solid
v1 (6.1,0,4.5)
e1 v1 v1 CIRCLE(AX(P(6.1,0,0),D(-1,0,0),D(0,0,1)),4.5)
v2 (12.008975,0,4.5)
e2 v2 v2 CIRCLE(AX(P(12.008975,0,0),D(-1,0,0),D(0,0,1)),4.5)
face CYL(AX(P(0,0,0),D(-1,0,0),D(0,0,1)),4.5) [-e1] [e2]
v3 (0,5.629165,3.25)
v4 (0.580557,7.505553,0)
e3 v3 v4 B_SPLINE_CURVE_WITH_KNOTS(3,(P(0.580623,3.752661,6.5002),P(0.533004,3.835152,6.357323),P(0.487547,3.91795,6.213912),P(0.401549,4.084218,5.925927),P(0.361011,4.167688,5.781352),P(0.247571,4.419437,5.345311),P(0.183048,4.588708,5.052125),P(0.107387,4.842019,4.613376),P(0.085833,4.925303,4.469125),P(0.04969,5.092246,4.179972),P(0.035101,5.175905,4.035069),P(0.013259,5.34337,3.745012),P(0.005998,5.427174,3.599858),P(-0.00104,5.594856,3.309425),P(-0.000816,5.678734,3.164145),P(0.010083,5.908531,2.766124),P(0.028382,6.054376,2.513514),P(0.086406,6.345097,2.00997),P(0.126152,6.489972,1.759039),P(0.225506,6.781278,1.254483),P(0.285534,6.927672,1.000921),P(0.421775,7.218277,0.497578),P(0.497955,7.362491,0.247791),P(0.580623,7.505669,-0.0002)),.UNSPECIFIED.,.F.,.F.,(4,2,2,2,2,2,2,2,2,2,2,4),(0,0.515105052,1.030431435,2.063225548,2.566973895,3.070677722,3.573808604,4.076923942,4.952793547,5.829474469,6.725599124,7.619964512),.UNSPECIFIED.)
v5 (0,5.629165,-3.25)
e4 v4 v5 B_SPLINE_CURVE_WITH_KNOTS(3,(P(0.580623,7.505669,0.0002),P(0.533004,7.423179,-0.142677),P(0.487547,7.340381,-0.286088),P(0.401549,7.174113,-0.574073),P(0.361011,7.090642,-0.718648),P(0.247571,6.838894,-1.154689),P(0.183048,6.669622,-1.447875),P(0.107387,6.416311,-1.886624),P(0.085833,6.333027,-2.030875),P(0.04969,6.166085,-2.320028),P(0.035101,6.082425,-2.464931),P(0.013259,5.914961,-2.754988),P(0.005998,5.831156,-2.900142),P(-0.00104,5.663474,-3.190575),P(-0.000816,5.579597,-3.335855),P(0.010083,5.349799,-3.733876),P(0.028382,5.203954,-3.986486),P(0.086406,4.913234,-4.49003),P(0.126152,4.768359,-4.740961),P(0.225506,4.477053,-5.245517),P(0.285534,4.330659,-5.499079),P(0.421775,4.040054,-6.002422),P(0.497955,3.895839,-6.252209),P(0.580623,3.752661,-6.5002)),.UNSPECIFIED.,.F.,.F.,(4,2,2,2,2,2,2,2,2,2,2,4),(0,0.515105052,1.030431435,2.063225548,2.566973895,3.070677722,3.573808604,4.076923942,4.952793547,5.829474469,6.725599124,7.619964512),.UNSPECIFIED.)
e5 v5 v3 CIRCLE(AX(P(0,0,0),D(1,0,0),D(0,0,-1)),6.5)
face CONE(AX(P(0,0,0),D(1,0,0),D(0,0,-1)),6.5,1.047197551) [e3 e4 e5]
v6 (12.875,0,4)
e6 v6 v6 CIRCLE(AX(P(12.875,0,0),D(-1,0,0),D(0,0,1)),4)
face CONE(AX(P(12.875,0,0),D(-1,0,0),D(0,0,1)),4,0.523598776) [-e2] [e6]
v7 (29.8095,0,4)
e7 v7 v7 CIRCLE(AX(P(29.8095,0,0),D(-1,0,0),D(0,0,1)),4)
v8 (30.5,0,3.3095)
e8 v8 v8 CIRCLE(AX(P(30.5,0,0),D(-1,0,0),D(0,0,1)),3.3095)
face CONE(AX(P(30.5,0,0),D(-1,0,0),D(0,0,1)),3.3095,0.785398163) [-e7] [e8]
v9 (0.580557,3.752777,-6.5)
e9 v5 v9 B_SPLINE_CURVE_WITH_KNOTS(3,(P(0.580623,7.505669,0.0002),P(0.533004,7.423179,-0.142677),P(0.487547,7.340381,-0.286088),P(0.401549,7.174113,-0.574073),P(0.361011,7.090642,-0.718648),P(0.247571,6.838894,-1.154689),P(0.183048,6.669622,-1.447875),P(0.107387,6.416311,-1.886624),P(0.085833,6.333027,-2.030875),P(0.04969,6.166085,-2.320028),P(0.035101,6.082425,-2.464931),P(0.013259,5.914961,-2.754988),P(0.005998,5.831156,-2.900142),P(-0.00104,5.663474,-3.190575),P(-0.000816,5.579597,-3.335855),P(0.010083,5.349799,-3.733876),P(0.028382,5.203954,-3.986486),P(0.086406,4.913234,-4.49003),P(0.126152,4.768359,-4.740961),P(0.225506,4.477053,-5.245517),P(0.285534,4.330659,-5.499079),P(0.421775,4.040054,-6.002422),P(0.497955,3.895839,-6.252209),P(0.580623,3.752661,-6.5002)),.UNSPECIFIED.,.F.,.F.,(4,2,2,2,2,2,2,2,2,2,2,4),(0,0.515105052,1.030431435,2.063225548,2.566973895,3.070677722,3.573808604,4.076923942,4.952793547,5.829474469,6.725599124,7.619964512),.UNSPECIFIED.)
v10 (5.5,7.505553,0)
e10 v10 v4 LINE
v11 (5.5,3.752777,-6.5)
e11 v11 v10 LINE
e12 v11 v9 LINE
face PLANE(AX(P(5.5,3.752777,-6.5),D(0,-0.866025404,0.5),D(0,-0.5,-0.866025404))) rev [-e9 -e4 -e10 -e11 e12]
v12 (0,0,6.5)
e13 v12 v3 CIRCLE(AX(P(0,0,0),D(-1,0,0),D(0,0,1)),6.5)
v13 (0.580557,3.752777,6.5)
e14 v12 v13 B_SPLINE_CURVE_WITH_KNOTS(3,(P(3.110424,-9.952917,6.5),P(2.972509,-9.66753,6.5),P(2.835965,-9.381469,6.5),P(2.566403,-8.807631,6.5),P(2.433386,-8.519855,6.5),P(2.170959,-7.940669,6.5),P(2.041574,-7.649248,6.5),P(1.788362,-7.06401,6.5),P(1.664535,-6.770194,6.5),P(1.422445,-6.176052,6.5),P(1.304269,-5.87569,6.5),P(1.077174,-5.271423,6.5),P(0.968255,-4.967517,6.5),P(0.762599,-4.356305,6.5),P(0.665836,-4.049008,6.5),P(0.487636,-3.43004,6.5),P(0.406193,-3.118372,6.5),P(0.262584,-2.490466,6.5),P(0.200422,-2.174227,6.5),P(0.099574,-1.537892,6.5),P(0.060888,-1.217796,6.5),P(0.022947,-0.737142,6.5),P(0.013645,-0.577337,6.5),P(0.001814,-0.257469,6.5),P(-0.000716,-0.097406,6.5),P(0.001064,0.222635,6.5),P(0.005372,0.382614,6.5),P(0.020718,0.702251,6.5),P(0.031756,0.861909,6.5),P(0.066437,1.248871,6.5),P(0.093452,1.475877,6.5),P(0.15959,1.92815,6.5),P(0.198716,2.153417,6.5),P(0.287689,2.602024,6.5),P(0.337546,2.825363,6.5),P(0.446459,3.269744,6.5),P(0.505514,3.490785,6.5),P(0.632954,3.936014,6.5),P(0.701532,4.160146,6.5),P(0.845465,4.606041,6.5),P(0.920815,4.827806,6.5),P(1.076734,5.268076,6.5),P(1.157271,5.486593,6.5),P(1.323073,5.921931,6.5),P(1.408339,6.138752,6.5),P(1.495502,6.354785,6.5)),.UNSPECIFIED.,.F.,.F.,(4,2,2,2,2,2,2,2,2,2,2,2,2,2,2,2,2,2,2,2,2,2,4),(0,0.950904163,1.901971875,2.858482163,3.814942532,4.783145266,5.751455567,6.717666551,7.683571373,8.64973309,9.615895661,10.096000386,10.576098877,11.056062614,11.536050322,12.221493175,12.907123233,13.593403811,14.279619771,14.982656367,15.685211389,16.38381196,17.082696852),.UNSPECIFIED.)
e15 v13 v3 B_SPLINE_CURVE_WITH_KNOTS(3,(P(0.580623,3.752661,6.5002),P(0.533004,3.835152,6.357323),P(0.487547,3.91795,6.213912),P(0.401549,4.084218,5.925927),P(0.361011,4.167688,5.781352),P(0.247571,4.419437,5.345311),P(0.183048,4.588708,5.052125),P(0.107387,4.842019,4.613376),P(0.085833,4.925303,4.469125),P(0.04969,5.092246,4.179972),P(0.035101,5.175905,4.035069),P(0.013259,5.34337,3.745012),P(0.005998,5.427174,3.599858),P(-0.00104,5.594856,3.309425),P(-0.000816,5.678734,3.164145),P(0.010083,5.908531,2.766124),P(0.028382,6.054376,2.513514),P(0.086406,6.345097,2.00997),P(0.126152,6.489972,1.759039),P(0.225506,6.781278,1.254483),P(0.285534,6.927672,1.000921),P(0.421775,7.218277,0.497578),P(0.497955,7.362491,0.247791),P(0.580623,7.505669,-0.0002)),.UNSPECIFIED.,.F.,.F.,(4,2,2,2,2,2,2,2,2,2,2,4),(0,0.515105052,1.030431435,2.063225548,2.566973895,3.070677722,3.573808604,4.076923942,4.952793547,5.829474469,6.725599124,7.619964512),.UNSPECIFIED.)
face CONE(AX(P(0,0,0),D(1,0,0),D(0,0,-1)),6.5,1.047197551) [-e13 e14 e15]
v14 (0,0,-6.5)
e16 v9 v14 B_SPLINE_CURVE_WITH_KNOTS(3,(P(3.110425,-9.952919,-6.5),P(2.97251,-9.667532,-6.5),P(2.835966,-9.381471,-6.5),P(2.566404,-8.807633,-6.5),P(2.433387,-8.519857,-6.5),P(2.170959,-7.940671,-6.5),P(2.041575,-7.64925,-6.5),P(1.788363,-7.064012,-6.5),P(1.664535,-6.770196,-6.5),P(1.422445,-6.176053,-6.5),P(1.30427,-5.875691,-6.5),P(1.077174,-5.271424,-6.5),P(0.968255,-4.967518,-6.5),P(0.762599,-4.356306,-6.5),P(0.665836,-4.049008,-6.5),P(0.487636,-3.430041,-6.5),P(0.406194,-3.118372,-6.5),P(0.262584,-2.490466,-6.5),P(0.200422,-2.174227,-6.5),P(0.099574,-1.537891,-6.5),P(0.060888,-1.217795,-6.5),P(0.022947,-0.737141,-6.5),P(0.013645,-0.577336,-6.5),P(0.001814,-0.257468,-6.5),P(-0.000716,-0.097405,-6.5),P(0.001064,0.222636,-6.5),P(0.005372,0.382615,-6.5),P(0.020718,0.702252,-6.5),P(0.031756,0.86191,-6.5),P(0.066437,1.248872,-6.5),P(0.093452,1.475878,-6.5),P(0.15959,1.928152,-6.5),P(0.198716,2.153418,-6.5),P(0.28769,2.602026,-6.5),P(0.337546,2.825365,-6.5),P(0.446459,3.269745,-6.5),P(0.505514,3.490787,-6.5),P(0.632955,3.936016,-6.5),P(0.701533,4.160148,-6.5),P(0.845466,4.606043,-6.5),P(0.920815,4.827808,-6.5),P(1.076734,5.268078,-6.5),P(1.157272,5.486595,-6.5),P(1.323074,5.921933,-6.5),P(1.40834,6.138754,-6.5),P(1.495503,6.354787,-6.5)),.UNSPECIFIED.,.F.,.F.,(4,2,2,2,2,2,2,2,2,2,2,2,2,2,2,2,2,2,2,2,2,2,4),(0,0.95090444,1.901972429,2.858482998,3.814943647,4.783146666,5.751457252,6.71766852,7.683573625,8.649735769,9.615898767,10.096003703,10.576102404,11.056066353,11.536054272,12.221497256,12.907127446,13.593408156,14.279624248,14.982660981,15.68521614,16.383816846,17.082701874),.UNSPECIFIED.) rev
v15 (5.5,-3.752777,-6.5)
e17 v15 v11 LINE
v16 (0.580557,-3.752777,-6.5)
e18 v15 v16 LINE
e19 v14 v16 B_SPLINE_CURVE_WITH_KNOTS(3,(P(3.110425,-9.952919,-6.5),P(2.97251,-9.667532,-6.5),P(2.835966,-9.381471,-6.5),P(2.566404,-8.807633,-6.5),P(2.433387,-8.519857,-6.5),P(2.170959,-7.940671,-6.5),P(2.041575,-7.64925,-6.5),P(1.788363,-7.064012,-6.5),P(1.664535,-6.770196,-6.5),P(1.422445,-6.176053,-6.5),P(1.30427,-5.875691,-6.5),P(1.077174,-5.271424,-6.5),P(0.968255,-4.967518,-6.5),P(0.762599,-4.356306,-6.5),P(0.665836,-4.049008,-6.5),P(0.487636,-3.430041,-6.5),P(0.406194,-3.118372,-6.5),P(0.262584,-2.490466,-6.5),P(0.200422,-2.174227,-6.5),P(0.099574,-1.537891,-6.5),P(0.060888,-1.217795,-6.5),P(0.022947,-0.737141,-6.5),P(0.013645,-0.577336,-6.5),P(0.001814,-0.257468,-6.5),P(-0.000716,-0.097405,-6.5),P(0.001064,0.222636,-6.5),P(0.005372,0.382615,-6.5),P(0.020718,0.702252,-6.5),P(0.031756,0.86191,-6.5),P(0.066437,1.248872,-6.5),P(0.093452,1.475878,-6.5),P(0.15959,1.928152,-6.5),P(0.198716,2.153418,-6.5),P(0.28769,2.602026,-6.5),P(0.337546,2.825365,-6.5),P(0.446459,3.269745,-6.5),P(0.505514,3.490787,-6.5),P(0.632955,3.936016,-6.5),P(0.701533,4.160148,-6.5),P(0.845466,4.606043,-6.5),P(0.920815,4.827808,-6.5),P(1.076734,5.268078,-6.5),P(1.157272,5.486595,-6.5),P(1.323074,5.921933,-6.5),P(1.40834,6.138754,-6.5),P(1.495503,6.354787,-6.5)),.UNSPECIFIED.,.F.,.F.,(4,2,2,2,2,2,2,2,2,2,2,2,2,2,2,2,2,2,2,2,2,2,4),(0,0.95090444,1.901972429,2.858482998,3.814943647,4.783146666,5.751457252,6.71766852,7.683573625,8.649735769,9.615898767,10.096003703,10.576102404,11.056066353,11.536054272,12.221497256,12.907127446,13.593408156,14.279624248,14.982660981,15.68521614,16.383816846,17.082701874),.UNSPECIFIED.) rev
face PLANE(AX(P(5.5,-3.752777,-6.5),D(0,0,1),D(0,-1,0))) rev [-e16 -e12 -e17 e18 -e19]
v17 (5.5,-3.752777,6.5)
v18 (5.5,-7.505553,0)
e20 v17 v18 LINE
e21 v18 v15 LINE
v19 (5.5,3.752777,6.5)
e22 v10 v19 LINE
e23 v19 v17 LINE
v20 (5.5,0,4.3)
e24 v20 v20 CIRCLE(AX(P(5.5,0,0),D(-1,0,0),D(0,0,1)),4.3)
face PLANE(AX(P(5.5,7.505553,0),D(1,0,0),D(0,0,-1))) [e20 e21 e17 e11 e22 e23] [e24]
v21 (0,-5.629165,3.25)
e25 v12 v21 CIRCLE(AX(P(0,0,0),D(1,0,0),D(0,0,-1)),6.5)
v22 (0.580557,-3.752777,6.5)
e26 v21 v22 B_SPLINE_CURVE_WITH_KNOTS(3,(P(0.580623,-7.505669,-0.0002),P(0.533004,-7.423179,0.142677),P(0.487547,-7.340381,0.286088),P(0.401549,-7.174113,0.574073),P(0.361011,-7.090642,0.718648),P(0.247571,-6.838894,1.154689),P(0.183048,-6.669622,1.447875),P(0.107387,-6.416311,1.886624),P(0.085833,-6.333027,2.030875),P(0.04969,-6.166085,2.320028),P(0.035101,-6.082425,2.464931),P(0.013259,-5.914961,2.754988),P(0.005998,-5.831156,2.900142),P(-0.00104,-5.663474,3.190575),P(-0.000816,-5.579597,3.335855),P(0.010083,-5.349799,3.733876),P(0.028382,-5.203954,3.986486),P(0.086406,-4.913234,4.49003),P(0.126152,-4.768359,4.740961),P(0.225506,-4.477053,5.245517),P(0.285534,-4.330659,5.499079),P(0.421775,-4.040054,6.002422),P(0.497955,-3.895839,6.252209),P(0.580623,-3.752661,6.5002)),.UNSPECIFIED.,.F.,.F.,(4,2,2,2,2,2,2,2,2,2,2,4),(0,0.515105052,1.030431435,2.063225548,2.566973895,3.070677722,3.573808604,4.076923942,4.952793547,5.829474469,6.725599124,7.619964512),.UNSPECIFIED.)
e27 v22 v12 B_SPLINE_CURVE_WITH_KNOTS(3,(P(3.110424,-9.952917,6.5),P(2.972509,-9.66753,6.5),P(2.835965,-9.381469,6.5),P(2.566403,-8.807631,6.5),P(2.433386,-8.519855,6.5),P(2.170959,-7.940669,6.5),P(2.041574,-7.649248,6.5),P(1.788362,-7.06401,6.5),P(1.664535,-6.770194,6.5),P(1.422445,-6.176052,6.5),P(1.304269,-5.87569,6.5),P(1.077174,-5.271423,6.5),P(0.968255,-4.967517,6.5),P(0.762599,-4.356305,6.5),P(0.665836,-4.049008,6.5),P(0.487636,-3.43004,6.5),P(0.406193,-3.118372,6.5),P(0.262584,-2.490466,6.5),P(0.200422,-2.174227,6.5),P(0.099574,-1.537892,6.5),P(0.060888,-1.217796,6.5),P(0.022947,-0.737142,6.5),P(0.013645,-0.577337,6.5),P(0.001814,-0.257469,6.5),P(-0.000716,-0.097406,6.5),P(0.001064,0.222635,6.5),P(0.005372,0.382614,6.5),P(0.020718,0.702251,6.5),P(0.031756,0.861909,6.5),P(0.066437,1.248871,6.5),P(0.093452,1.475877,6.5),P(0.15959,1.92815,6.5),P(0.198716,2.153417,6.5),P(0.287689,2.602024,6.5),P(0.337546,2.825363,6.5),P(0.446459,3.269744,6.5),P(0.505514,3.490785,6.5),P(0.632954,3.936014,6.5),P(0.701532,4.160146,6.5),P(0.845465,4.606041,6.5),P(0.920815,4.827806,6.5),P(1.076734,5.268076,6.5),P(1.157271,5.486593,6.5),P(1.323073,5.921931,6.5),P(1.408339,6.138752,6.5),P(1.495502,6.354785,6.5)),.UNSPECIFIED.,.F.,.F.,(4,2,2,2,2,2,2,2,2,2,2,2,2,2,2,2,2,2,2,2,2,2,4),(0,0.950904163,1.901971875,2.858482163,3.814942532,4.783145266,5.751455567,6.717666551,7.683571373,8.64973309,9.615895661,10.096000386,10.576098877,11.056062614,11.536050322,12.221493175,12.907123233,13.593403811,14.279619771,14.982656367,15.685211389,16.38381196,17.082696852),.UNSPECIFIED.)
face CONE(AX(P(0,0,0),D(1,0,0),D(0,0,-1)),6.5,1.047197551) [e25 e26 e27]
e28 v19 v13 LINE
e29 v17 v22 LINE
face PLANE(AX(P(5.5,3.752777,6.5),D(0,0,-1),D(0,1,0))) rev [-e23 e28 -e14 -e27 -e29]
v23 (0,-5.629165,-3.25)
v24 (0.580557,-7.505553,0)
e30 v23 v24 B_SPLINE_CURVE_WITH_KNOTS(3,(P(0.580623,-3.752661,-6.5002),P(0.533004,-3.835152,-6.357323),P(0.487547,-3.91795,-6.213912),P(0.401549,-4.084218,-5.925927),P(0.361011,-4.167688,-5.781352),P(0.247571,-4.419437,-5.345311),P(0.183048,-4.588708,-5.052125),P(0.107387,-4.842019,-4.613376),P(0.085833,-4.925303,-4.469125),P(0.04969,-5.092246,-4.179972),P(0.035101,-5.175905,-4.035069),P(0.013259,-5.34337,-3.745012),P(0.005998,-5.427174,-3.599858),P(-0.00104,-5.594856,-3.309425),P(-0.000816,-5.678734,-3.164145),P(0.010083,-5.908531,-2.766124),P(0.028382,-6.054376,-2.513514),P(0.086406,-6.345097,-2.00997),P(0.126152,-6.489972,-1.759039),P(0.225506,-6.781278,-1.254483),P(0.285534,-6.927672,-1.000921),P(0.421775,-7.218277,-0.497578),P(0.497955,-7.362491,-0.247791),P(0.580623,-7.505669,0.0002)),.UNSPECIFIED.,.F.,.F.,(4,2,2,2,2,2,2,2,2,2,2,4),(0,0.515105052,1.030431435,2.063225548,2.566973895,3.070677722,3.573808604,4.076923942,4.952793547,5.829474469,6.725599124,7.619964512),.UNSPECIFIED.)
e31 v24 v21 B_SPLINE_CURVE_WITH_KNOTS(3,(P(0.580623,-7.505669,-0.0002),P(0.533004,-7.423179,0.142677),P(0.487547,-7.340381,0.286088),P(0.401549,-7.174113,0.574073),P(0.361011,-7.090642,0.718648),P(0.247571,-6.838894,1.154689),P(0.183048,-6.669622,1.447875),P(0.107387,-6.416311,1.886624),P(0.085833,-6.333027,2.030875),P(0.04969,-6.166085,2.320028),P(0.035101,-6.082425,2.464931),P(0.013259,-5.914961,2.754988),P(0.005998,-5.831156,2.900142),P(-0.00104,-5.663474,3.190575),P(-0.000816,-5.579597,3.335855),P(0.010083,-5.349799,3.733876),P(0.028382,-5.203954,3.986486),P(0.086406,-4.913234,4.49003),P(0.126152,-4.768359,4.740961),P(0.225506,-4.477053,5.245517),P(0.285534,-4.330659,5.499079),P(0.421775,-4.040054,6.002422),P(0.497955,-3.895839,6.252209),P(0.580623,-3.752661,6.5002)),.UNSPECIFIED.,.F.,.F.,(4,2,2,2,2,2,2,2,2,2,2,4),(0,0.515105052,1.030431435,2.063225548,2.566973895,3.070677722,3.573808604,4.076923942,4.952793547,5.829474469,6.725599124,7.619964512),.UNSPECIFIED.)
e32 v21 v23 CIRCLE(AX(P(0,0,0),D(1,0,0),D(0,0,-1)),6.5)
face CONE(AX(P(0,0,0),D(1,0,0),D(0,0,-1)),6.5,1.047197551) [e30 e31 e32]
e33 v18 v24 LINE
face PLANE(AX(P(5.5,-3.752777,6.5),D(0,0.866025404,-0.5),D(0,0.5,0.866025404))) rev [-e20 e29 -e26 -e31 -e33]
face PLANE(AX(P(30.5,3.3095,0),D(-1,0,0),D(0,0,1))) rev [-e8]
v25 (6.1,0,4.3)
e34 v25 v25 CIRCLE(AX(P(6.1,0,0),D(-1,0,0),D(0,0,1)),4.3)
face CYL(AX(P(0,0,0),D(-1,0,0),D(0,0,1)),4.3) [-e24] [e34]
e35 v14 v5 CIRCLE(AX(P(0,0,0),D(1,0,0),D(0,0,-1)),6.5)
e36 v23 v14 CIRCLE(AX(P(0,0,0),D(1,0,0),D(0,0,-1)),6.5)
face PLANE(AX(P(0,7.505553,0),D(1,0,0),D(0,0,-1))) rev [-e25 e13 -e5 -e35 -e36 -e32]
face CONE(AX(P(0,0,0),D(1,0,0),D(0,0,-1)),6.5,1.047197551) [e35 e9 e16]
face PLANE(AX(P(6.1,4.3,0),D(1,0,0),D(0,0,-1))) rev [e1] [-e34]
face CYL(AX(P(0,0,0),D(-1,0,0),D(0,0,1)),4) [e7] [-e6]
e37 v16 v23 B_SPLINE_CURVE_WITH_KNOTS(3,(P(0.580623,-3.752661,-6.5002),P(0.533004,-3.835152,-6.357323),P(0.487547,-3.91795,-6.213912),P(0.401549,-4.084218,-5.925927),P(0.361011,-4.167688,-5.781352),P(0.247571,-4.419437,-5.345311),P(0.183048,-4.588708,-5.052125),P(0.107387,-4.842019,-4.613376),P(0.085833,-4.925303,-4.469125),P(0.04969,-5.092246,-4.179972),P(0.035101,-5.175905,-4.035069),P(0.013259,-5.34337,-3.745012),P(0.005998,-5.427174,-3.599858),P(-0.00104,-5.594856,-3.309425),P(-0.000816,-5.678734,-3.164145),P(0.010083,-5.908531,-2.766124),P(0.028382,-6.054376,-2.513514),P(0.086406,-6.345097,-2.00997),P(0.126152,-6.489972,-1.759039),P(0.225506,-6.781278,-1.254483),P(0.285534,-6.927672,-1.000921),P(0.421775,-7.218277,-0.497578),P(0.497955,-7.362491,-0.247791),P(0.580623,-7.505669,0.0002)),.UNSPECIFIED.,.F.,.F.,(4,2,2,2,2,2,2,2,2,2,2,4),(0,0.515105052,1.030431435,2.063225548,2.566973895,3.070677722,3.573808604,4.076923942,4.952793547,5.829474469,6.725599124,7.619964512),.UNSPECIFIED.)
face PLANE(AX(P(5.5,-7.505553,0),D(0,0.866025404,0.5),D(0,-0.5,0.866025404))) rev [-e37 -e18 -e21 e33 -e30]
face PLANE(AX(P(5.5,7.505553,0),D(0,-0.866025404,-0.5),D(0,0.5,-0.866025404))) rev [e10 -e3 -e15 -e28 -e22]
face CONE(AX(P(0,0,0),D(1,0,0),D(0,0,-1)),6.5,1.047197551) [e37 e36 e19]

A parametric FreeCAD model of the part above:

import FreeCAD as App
import Part
import Sketcher
from FreeCAD import Vector
Q = App.Units.Quantity


def add_polygon(sketch, points):
    """Adds a closed chain of lines whose ends are joined by coincident constraints."""
    first, n = sketch.GeometryCount, len(points)
    for a, b in zip(points, points[1:] + points[:1]):
        sketch.addGeometry(Part.LineSegment(App.Vector(*a, 0), App.Vector(*b, 0)), False)
    for i in range(n):
        sketch.addConstraint(Sketcher.Constraint("Coincident", first + i, 2, first + (i + 1) % n, 1))

doc = App.newDocument("Part")
body = doc.addObject("PartDesign::Body", "Body")

# Sketch on YZ plane
sketch1 = body.newObject("Sketcher::SketchObject", "Sketch")
sketch1.AttachmentSupport = (doc.getObject("YZ_Plane"), [""])
sketch1.MapMode = "FlatFace"
add_polygon(sketch1, [(8, 0), (4, 6), (-4, 6), (-8, 0), (-4, -6), (4, -6)])  # lines 0-5
sketch1.addConstraint([
    Sketcher.Constraint("Horizontal", 1),
    Sketcher.Constraint("Horizontal", 4),
    Sketcher.Constraint("Symmetric", 0, 2, 3, 2, -1, 1),
    Sketcher.Constraint("Symmetric", 2, 2, 5, 2, -1, 1),
    Sketcher.Constraint("PointOnObject", 2, 2, -1),
    Sketcher.Constraint("Parallel", 2, 5),
    Sketcher.Constraint("Vertical", 1, 2, 3, 2),
    Sketcher.Constraint("Angle", 0, Q("120 deg")),
    Sketcher.Constraint("DistanceY", 3, 2, 1, 2, 13.0),
    Sketcher.Constraint("DistanceX", 1, 2, 1, 1, 7.505554),
])
pad1 = body.newObject("PartDesign::Pad", "Pad")
pad1.Profile = sketch1
pad1.Length = 5.5

# Sketch on XY plane
sketch2 = body.newObject("Sketcher::SketchObject", "Sketch001")
sketch2.AttachmentSupport = (doc.getObject("XY_Plane"), [""])
sketch2.MapMode = "FlatFace"
add_polygon(sketch2, [(0, 7.5), (0, 6.5), (0.6, 7.5)])  # lines 0-2
sketch2.addConstraint([
    Sketcher.Constraint("Vertical", 0),
    Sketcher.Constraint("Horizontal", 2),
    Sketcher.Constraint("PointOnObject", 0, 2, -2),
    Sketcher.Constraint("Angle", 1, Q("60 deg")),
    Sketcher.Constraint("DistanceY", -1, 1, 0, 2, 6.5),
    Sketcher.Constraint("DistanceX", 2, 2, 2, 1, 0.580557),
])
groove = body.newObject("PartDesign::Groove", "Groove")
groove.Profile = sketch2
groove.ReferenceAxis = (sketch2, ["H_Axis"])
groove.Angle = 360

# Sketch on XY plane
sketch3 = body.newObject("Sketcher::SketchObject", "Sketch002")
sketch3.AttachmentSupport = (doc.getObject("XY_Plane"), [""])
sketch3.MapMode = "FlatFace"
add_polygon(sketch3, [(6.1, 4.3), (5.5, 4.3), (5.5, 0), (30.5, 0), (30.5, 3.31), (29.81, 4), (12.88, 4), (12.01, 4.5), (6.1, 4.5)])  # lines 0-8
sketch3.addConstraint([
    Sketcher.Constraint("Horizontal", 0),
    Sketcher.Constraint("Vertical", 1),
    Sketcher.Constraint("Horizontal", 2),
    Sketcher.Constraint("Vertical", 3),
    Sketcher.Constraint("Horizontal", 5),
    Sketcher.Constraint("Horizontal", 7),
    Sketcher.Constraint("Vertical", 8),
    Sketcher.Constraint("PointOnObject", 1, 2, -1),
    Sketcher.Constraint("DistanceX", 2, 1, 2, 2, 25.0),
    Sketcher.Constraint("Angle", 4, Q("135 deg")),
    Sketcher.Constraint("Angle", 6, Q("150 deg")),
    Sketcher.Constraint("Distance", 6, 1.0),
    Sketcher.Constraint("DistanceX", 0, 2, 0, 1, 0.6),
    Sketcher.Constraint("DistanceY", 1, 2, 1, 1, 4.3),
    Sketcher.Constraint("DistanceY", 8, 2, 8, 1, 0.2),
    Sketcher.Constraint("DistanceX", -1, 1, 0, 2, 5.5),
    Sketcher.Constraint("DistanceX", 5, 2, 5, 1, 16.9345),
    Sketcher.Constraint("DistanceY", 3, 1, 3, 2, 3.3095),
])
revolution = body.newObject("PartDesign::Revolution", "Revolution")
revolution.Profile = sketch3
revolution.ReferenceAxis = (sketch3, ["H_Axis"])
revolution.Angle = 360

doc.recompute()
